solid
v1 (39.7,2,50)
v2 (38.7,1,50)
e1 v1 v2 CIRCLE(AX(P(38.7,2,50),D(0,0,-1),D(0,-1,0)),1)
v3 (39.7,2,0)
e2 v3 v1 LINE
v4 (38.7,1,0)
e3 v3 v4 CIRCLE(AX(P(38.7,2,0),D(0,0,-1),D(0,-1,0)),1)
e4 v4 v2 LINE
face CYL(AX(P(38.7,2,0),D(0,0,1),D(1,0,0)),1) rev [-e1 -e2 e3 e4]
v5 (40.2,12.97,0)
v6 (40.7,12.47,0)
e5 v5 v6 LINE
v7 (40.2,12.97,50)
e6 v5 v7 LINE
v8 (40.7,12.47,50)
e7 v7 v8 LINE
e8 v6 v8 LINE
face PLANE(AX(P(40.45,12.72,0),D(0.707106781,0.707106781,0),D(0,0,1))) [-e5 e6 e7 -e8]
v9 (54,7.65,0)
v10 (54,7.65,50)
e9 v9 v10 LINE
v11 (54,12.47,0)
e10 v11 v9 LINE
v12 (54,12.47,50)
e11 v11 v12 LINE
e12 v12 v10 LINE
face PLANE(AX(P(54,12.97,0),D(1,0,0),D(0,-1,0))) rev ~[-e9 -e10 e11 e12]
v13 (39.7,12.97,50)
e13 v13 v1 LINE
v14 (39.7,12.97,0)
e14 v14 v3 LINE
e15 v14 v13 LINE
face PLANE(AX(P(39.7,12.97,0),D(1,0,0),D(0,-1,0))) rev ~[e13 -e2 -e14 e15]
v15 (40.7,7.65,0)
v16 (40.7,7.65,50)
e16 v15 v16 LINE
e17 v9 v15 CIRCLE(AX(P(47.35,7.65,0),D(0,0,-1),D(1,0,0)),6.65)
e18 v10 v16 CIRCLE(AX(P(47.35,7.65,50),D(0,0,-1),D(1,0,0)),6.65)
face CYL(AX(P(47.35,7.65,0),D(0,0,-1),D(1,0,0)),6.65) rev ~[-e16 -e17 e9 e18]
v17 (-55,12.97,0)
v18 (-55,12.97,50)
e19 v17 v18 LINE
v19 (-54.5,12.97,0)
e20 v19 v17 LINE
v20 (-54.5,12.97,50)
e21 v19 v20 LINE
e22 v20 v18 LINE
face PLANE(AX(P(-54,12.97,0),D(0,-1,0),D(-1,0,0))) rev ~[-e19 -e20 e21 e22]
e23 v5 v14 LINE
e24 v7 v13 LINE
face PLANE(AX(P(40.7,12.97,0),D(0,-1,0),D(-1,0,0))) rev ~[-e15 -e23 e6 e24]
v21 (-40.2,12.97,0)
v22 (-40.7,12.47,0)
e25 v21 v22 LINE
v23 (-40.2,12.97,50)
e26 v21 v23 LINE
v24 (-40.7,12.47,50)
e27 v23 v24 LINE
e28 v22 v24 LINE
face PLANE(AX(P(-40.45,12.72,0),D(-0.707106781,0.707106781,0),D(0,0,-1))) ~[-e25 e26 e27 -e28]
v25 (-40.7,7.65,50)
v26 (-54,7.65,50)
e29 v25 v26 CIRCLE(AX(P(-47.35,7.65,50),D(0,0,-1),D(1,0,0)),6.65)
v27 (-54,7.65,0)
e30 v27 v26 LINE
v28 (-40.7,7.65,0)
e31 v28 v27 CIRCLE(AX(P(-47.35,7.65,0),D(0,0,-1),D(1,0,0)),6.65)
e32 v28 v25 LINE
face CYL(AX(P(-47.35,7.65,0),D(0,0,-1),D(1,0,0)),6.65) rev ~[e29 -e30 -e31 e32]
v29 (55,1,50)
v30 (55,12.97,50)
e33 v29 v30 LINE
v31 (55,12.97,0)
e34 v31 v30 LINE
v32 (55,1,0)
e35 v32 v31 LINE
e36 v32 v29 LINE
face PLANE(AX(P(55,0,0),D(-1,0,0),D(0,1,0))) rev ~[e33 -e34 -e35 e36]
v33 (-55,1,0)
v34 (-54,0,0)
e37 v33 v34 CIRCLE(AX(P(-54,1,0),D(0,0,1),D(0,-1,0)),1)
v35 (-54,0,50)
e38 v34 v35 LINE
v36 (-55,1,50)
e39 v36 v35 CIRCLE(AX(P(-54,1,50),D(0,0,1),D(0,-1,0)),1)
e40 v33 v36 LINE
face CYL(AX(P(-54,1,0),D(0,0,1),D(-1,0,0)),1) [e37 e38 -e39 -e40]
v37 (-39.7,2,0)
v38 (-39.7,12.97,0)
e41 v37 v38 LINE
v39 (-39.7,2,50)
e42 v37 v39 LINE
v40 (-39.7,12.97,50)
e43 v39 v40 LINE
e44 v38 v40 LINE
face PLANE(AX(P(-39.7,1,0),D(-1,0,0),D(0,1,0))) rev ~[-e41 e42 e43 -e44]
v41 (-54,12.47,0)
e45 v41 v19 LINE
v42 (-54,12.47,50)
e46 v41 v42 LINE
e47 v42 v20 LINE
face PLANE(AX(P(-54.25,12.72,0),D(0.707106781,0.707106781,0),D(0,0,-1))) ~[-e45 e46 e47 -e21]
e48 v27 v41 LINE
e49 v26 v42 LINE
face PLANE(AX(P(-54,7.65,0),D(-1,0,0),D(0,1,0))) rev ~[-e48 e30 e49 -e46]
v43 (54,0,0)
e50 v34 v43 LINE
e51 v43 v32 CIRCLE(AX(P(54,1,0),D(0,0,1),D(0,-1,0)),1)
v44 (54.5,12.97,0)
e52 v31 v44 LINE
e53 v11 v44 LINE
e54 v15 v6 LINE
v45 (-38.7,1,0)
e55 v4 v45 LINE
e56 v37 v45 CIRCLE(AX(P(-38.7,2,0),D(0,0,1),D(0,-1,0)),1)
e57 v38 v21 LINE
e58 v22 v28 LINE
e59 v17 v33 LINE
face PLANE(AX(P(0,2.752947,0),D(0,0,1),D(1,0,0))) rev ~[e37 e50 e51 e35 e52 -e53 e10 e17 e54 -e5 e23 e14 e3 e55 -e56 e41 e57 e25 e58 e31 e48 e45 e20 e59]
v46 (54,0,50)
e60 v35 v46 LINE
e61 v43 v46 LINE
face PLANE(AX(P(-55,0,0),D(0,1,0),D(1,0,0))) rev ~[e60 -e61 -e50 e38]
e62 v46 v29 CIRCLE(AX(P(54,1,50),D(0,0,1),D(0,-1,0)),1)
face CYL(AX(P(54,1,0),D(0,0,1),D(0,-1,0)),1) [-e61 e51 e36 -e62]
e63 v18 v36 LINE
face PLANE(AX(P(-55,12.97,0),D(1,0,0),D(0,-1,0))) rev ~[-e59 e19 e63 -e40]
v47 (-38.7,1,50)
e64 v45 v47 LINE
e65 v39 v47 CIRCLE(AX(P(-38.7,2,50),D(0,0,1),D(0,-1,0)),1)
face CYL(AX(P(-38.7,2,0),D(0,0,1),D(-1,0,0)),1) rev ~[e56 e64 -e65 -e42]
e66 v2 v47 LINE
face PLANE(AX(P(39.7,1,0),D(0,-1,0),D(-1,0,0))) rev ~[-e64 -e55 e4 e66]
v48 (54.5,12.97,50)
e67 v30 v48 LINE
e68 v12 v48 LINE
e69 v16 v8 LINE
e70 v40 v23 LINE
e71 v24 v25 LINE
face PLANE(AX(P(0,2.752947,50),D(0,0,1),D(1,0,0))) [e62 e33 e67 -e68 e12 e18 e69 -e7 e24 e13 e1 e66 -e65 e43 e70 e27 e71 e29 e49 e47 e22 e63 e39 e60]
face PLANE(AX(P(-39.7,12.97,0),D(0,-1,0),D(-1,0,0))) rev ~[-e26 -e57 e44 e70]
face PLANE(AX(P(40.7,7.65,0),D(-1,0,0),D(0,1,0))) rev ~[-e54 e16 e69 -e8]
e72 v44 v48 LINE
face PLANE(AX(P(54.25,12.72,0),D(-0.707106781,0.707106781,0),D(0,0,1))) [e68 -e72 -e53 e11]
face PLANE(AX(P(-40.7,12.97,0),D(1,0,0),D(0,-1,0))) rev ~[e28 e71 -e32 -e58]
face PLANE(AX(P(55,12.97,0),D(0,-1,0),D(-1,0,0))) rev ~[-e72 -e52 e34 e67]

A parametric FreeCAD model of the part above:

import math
import FreeCAD as App
import Part
import Sketcher
from FreeCAD import Vector


def edges_at(feature, points):
    """Names of the edges that pass closest to the given points."""
    edges = feature.Shape.Edges
    near = lambda p: min(range(len(edges)), key=lambda i: edges[i].distToShape(Part.Vertex(*p))[0])
    return sorted({f"Edge{near(p) + 1}" for p in points})

doc = App.newDocument("Part")
body = doc.addObject("PartDesign::Body", "Body")

sketch1 = doc.addObject("Sketcher::SketchObject", "Sketch")
body.addObject(sketch1)
sketch1.AttachmentSupport = (doc.XY_Plane, [""])
sketch1.MapMode = "FlatFace"
sketch1.addGeometry(Part.LineSegment(Vector(-39.7, 1, 0), Vector(-39.7, 12.97, 0)), False)
sketch1.addGeometry(Part.LineSegment(Vector(-39.7, 12.97, 0), Vector(-40.7, 12.97, 0)), False)
sketch1.addGeometry(Part.LineSegment(Vector(-40.7, 12.97, 0), Vector(-40.7, 7.65, 0)), False)
sketch1.addGeometry(Part.ArcOfCircle(Part.Circle(Vector(-47.35, 7.65, 0), Vector(0, 0, 1), 6.65), math.radians(180), math.radians(360)), False)
sketch1.addGeometry(Part.LineSegment(Vector(-54, 7.65, 0), Vector(-54, 12.97, 0)), False)
sketch1.addGeometry(Part.LineSegment(Vector(-54, 12.97, 0), Vector(-55, 12.97, 0)), False)
sketch1.addGeometry(Part.LineSegment(Vector(-55, 12.97, 0), Vector(-55, 0, 0)), False)
sketch1.addGeometry(Part.LineSegment(Vector(-55, 0, 0), Vector(55, 0, 0)), False)
sketch1.addGeometry(Part.LineSegment(Vector(55, 0, 0), Vector(55, 12.97, 0)), False)
sketch1.addGeometry(Part.LineSegment(Vector(55, 12.97, 0), Vector(54, 12.97, 0)), False)
sketch1.addGeometry(Part.LineSegment(Vector(54, 12.97, 0), Vector(54, 7.65, 0)), False)
sketch1.addGeometry(Part.ArcOfCircle(Part.Circle(Vector(47.35, 7.65, 0), Vector(0, 0, 1), 6.65), math.radians(180), math.radians(360)), False)
sketch1.addGeometry(Part.LineSegment(Vector(40.7, 7.65, 0), Vector(40.7, 12.97, 0)), False)
sketch1.addGeometry(Part.LineSegment(Vector(40.7, 12.97, 0), Vector(39.7, 12.97, 0)), False)
sketch1.addGeometry(Part.LineSegment(Vector(39.7, 12.97, 0), Vector(39.7, 1, 0)), False)
sketch1.addGeometry(Part.LineSegment(Vector(39.7, 1, 0), Vector(-39.7, 1, 0)), False)
sketch1.addConstraint(Sketcher.Constraint("Coincident", 0, 2, 1, 1))
sketch1.addConstraint(Sketcher.Constraint("Coincident", 1, 2, 2, 1))
sketch1.addConstraint(Sketcher.Constraint("Tangent", 2, 2, 3, 2))
sketch1.addConstraint(Sketcher.Constraint("Tangent", 3, 1, 4, 1))
sketch1.addConstraint(Sketcher.Constraint("Coincident", 4, 2, 5, 1))
sketch1.addConstraint(Sketcher.Constraint("Coincident", 5, 2, 6, 1))
sketch1.addConstraint(Sketcher.Constraint("Coincident", 6, 2, 7, 1))
sketch1.addConstraint(Sketcher.Constraint("Coincident", 7, 2, 8, 1))
sketch1.addConstraint(Sketcher.Constraint("Coincident", 8, 2, 9, 1))
sketch1.addConstraint(Sketcher.Constraint("Coincident", 9, 2, 10, 1))
sketch1.addConstraint(Sketcher.Constraint("Tangent", 10, 2, 11, 2))
sketch1.addConstraint(Sketcher.Constraint("Tangent", 11, 1, 12, 1))
sketch1.addConstraint(Sketcher.Constraint("Coincident", 12, 2, 13, 1))
sketch1.addConstraint(Sketcher.Constraint("Coincident", 13, 2, 14, 1))
sketch1.addConstraint(Sketcher.Constraint("Coincident", 14, 2, 15, 1))
sketch1.addConstraint(Sketcher.Constraint("Coincident", 15, 2, 0, 1))
sketch1.addConstraint(Sketcher.Constraint("Vertical", 0))
sketch1.addConstraint(Sketcher.Constraint("Horizontal", 1))
sketch1.addConstraint(Sketcher.Constraint("Vertical", 2))
sketch1.addConstraint(Sketcher.Constraint("Vertical", 4))
sketch1.addConstraint(Sketcher.Constraint("Horizontal", 5))
sketch1.addConstraint(Sketcher.Constraint("Vertical", 6))
sketch1.addConstraint(Sketcher.Constraint("Horizontal", 7))
sketch1.addConstraint(Sketcher.Constraint("Vertical", 8))
sketch1.addConstraint(Sketcher.Constraint("Horizontal", 9))
sketch1.addConstraint(Sketcher.Constraint("Vertical", 10))
sketch1.addConstraint(Sketcher.Constraint("Vertical", 12))
sketch1.addConstraint(Sketcher.Constraint("Horizontal", 13))
sketch1.addConstraint(Sketcher.Constraint("Vertical", 14))
sketch1.addConstraint(Sketcher.Constraint("Horizontal", 15))
sketch1.addConstraint(Sketcher.Constraint("Equal", 3, 11))
sketch1.addConstraint(Sketcher.Constraint("Symmetric", 6, 2, 7, 2, -1, 1))
sketch1.addConstraint(Sketcher.Constraint("Symmetric", 3, 3, 11, 3, -2))
sketch1.addConstraint(Sketcher.Constraint("Symmetric", 0, 2, 13, 2, -2))
sketch1.addConstraint(Sketcher.Constraint("Horizontal", 1, 2, 4, 2))
sketch1.addConstraint(Sketcher.Constraint("Horizontal", 5, 2, 8, 2))
sketch1.addConstraint(Sketcher.Constraint("Equal", 1, 5))
sketch1.addConstraint(Sketcher.Constraint("DistanceX", 1, 2, 1, 1, 1.0))
sketch1.addConstraint(Sketcher.Constraint("DistanceX", 7, 1, 7, 2, 110.0))
sketch1.addConstraint(Sketcher.Constraint("Radius", 3, 6.65))
sketch1.addConstraint(Sketcher.Constraint("DistanceY", -1, 1, 14, 2, 1.0))
sketch1.addConstraint(Sketcher.Constraint("DistanceY", 0, 1, 0, 2, 11.97))
sketch1.addConstraint(Sketcher.Constraint("DistanceY", 2, 2, 2, 1, 5.32))
pad1 = doc.addObject("PartDesign::Pad", "Pad")
body.addObject(pad1)
pad1.Profile = sketch1
pad1.Length = 50
doc.recompute()

fillet = doc.addObject("PartDesign::Fillet", "Fillet")
body.addObject(fillet)
fillet.Base = (pad1, edges_at(pad1, [
    (-55, 0, 25),
    (55, 0, 25),
    (39.7, 1, 25),
    (-39.7, 1, 25),
]))
fillet.Radius = 1
doc.recompute()

chamfer = doc.addObject("PartDesign::Chamfer", "Chamfer")
body.addObject(chamfer)
chamfer.Base = (fillet, edges_at(fillet, [
    (-54, 12.97, 25),
    (-40.7, 12.97, 25),
    (40.7, 12.97, 25),
    (54, 12.97, 25),
]))
chamfer.Size = 0.5

doc.recompute()
